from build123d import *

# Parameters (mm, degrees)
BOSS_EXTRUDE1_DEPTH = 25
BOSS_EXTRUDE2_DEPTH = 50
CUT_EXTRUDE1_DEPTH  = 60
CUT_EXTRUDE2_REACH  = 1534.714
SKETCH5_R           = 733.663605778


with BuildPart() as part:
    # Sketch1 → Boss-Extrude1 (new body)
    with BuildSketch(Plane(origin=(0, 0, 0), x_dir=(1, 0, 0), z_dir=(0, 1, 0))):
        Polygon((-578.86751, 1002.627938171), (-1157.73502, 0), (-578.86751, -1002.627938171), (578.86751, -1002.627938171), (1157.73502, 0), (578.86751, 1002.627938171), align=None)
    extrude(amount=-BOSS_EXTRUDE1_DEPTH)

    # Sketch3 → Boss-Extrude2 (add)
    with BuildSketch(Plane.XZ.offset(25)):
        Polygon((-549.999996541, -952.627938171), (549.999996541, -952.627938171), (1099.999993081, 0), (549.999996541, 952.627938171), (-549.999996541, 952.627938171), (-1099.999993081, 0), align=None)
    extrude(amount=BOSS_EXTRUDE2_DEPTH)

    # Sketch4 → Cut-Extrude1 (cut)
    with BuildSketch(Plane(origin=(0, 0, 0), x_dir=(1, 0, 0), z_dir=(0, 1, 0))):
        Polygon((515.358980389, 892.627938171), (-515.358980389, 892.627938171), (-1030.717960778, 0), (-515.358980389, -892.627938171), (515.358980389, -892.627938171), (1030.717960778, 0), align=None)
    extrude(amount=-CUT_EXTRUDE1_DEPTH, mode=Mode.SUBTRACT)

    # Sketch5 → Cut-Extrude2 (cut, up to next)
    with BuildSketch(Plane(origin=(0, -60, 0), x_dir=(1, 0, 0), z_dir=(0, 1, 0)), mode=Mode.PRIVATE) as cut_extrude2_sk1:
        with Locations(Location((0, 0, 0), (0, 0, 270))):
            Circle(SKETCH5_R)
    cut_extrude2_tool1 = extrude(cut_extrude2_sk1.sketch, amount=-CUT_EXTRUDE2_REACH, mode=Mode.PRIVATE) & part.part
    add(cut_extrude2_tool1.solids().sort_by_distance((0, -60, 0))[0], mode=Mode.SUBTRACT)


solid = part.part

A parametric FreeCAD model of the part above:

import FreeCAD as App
import Part
import Sketcher
Q = App.Units.Quantity


def add_polygon(sketch, points):
    """Adds a closed chain of lines whose ends are joined by coincident constraints."""
    first, n = sketch.GeometryCount, len(points)
    for a, b in zip(points, points[1:] + points[:1]):
        sketch.addGeometry(Part.LineSegment(App.Vector(*a, 0), App.Vector(*b, 0)), False)
    for i in range(n):
        sketch.addConstraint(Sketcher.Constraint("Coincident", first + i, 2, first + (i + 1) % n, 1))

doc = App.newDocument("Part")
body = doc.addObject("PartDesign::Body", "Body")

# Sketch on XZ plane
sketch1 = body.newObject("Sketcher::SketchObject", "Sketch")
sketch1.AttachmentSupport = (doc.getObject("XZ_Plane"), [""])
sketch1.MapMode = "FlatFace"
add_polygon(sketch1, [(-579, -1003), (-1158, 0), (-579, 1003), (579, 1003), (1158, 0), (579, -1003)])  # lines 0-5
sketch1.addConstraint([
    Sketcher.Constraint("Horizontal", 2),
    Sketcher.Constraint("Horizontal", 5),
    Sketcher.Constraint("Symmetric", 0, 2, 3, 2, -1, 1),
    Sketcher.Constraint("Symmetric", 1, 2, 4, 2, -1, 1),
    Sketcher.Constraint("PointOnObject", 0, 2, -1),
    Sketcher.Constraint("Parallel", 0, 3),
    Sketcher.Constraint("Vertical", 2, 2, 4, 2),
    Sketcher.Constraint("Angle", 0, Q("120 deg")),
    Sketcher.Constraint("DistanceX", 2, 1, 2, 2, Q("1157.73502 mm")),
    Sketcher.Constraint("Distance", 0, Q("1157.73502 mm")),
])
pad1 = body.newObject("PartDesign::Pad", "Pad")
pad1.Profile = sketch1
pad1.Length = 25

# Sketch on XZ plane
sketch2 = body.newObject("Sketcher::SketchObject", "Sketch001")
sketch2.AttachmentSupport = (doc.getObject("XZ_Plane"), [""])
sketch2.MapMode = "FlatFace"
sketch2.AttachmentOffset = App.Placement(App.Vector(0, 0, 25), App.Rotation())
add_polygon(sketch2, [(-550, -953), (550, -953), (1100, 0), (550, 953), (-550, 953), (-1100, 0)])  # lines 0-5
sketch2.addConstraint([
    Sketcher.Constraint("Horizontal", 0),
    Sketcher.Constraint("Horizontal", 3),
    Sketcher.Constraint("Symmetric", 0, 2, 3, 2, -1, 1),
    Sketcher.Constraint("Symmetric", 1, 2, 4, 2, -1, 1),
    Sketcher.Constraint("PointOnObject", 1, 2, -1),
    Sketcher.Constraint("Parallel", 2, 5),
    Sketcher.Constraint("Vertical", 0, 2, 2, 2),
    Sketcher.Constraint("Angle", 1, Q("60 deg")),
    Sketcher.Constraint("DistanceX", 0, 1, 0, 2, Q("1099.999993 mm")),
    Sketcher.Constraint("DistanceY", 0, 2, -1, 1, Q("952.627938 mm")),
])
pad2 = body.newObject("PartDesign::Pad", "Pad001")
pad2.Profile = sketch2
pad2.Length = 50

# Sketch on XZ plane
sketch3 = body.newObject("Sketcher::SketchObject", "Sketch002")
sketch3.AttachmentSupport = (doc.getObject("XZ_Plane"), [""])
sketch3.MapMode = "FlatFace"
add_polygon(sketch3, [(515, -893), (-515, -893), (-1031, 0), (-515, 893), (515, 893), (1031, 0)])  # lines 0-5
sketch3.addConstraint([
    Sketcher.Constraint("Horizontal", 0),
    Sketcher.Constraint("Horizontal", 3),
    Sketcher.Constraint("Symmetric", 0, 2, 3, 2, -1, 1),
    Sketcher.Constraint("Symmetric", 1, 2, 4, 2, -1, 1),
    Sketcher.Constraint("PointOnObject", 1, 2, -1),
    Sketcher.Constraint("Parallel", 2, 5),
    Sketcher.Constraint("Vertical", 0, 2, 2, 2),
    Sketcher.Constraint("Angle", 1, Q("120 deg")),
    Sketcher.Constraint("DistanceX", 0, 2, 0, 1, Q("1030.717961 mm")),
    Sketcher.Constraint("Distance", 1, Q("1030.717961 mm")),
])
pocket1 = body.newObject("PartDesign::Pocket", "Pocket")
pocket1.Profile = sketch3
pocket1.Length = 60
pocket1.Reversed = True

# Sketch on XZ plane
sketch4 = body.newObject("Sketcher::SketchObject", "Sketch003")
sketch4.AttachmentSupport = (doc.getObject("XZ_Plane"), [""])
sketch4.MapMode = "FlatFace"
sketch4.AttachmentOffset = App.Placement(App.Vector(0, 0, 60), App.Rotation())
sketch4.addGeometry(Part.Circle(App.Vector(0, 0, 0), App.Vector(0, 0, 1), 734), False)
sketch4.addConstraint([
    Sketcher.Constraint("Coincident", 0, 3, -1, 1),
    Sketcher.Constraint("Diameter", 0, Q("1467.327212 mm")),
])
pocket2 = body.newObject("PartDesign::Pocket", "Pocket001")
pocket2.Profile = sketch4
pocket2.Type = "UpToFirst"
pocket2.Reversed = True

doc.recompute()
